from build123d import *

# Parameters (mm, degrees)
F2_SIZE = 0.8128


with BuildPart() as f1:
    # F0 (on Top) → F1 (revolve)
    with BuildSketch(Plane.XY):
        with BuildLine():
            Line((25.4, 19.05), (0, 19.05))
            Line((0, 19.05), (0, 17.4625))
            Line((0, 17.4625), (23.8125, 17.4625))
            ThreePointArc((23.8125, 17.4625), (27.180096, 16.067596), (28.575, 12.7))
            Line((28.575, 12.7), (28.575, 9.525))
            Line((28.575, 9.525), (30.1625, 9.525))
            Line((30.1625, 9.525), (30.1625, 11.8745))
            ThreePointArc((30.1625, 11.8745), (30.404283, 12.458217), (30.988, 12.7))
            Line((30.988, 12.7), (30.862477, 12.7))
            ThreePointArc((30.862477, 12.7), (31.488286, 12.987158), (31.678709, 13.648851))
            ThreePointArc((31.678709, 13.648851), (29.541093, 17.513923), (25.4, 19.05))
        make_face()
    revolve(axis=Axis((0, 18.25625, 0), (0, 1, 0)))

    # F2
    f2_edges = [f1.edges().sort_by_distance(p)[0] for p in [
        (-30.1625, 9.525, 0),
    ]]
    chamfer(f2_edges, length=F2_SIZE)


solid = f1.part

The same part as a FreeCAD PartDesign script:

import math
import FreeCAD as App
import Part
import Sketcher

V = App.Vector
Q = App.Units.Quantity


def edges_at(feature, points):
    """Names of the edges that pass closest to the given points."""
    edges = feature.Shape.Edges
    near = lambda p: min(range(len(edges)), key=lambda i: edges[i].distToShape(Part.Vertex(*p))[0])
    return sorted({f"Edge{near(p) + 1}" for p in points})

doc = App.newDocument("Part")
body = doc.addObject("PartDesign::Body", "Body")

# Sketch on XY plane
sketch1 = body.newObject("Sketcher::SketchObject", "Sketch")
sketch1.AttachmentSupport = (doc.getObject("XY_Plane"), [""])
sketch1.MapMode = "FlatFace"
sketch1.addGeometry([
    Part.LineSegment(V(25.4, 19.05, 0), V(0, 19.05, 0)),  # 0
    Part.LineSegment(V(0, 19.05, 0), V(0, 17.46, 0)),  # 1
    Part.LineSegment(V(0, 17.46, 0), V(23.81, 17.46, 0)),  # 2
    Part.ArcOfCircle(Part.Circle(V(23.81, 12.7, 0), V(0, 0, 1), 4.76), math.radians(0), math.radians(90)),  # 3
    Part.LineSegment(V(28.57, 12.7, 0), V(28.57, 9.53, 0)),  # 4
    Part.LineSegment(V(28.57, 9.53, 0), V(30.16, 9.53, 0)),  # 5
    Part.LineSegment(V(30.16, 9.53, 0), V(30.16, 11.87, 0)),  # 6
    Part.ArcOfCircle(Part.Circle(V(30.99, 11.87, 0), V(0, 0, 1), 0.83), math.radians(90), math.radians(180)),  # 7
    Part.LineSegment(V(30.99, 12.7, 0), V(30.86, 12.7, 0)),  # 8
    Part.ArcOfCircle(Part.Circle(V(30.86, 13.53, 0), V(0, 0, 1), 0.83), math.radians(-90), math.radians(9)),  # 9
    Part.ArcOfCircle(Part.Circle(V(25.4, 12.7, 0), V(0, 0, 1), 6.35), math.radians(9), math.radians(90)),  # 10
], False)
sketch1.addConstraint([
    Sketcher.Constraint("Coincident", 0, 2, 1, 1),
    Sketcher.Constraint("Coincident", 1, 2, 2, 1),
    Sketcher.Constraint("Tangent", 2, 2, 3, 2),
    Sketcher.Constraint("Tangent", 3, 1, 4, 1),
    Sketcher.Constraint("Coincident", 4, 2, 5, 1),
    Sketcher.Constraint("Coincident", 5, 2, 6, 1),
    Sketcher.Constraint("Tangent", 6, 2, 7, 2),
    Sketcher.Constraint("Tangent", 7, 1, 8, 1),
    Sketcher.Constraint("Tangent", 8, 2, 9, 1),
    Sketcher.Constraint("Tangent", 9, 2, 10, 1),
    Sketcher.Constraint("Tangent", 10, 2, 0, 1),
    Sketcher.Constraint("Horizontal", 0),
    Sketcher.Constraint("Vertical", 1),
    Sketcher.Constraint("Horizontal", 2),
    Sketcher.Constraint("Vertical", 4),
    Sketcher.Constraint("Horizontal", 5),
    Sketcher.Constraint("Vertical", 6),
    Sketcher.Constraint("Horizontal", 8),
    Sketcher.Constraint("PointOnObject", 0, 2, -2),
    Sketcher.Constraint("Horizontal", 3, 3, 10, 3),
    Sketcher.Constraint("Horizontal", 3, 1, 7, 1),
    Sketcher.Constraint("Equal", 5, 1),
    Sketcher.Constraint("DistanceX", 0, 2, 0, 1, Q("1 in")),
    Sketcher.Constraint("Radius", 10, Q("0.25 in")),
    Sketcher.Constraint("Radius", 3, Q("0.1875 in")),
    Sketcher.Constraint("DistanceY", -1, 1, 3, 3, Q("0.5 in")),
    Sketcher.Constraint("Radius", 7, Q("0.0325 in")),
    Sketcher.Constraint("Radius", 9, Q("0.0325001 in")),
    Sketcher.Constraint("DistanceX", 2, 1, 2, 2, Q("0.9375 in")),
    Sketcher.Constraint("DistanceY", 4, 2, 4, 1, Q("0.125 in")),
])
revolution = body.newObject("PartDesign::Revolution", "Revolution")
revolution.Profile = sketch1
revolution.ReferenceAxis = (sketch1, ["V_Axis"])
revolution.Angle = 360
doc.recompute()

chamfer = body.newObject("PartDesign::Chamfer", "Chamfer")
chamfer.Base = (revolution, edges_at(revolution, [(-30.163, 9.525, 0)]))
chamfer.Size = Q("0.032 in")

doc.recompute()
